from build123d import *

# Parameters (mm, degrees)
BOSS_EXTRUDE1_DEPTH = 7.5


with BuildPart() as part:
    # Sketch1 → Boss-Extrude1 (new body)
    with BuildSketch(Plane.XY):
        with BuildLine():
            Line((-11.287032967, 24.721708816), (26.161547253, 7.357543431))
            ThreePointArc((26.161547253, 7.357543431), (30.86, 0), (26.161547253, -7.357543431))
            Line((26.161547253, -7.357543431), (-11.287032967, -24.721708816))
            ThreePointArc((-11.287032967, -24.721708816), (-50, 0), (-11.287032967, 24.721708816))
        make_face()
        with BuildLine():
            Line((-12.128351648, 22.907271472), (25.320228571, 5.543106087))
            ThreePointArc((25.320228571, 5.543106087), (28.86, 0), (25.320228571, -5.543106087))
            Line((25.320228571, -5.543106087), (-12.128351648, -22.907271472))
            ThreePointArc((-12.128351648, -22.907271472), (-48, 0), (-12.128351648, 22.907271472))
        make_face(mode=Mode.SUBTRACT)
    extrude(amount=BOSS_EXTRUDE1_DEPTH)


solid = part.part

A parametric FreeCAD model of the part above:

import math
import FreeCAD as App
import Part
import Sketcher
Q = App.Units.Quantity

doc = App.newDocument("Part")
params = doc.addObject("Spreadsheet::Sheet", "Params")
for row, (alias, value) in enumerate([
    ("sketch1_radius", "27.25 mm"),
    ("sketch1_radius2", "8.11 mm"),
    ("sketch1_radius3", "6.11 mm"),
    ("pad1_length", "7.5 mm"),
], start=1):
    params.set(f"A{row}", alias)
    params.set(f"B{row}", "=" + value)
    params.setAlias(f"B{row}", alias)

body = doc.addObject("PartDesign::Body", "Body")

# Sketch on XY plane
sketch1 = body.newObject("Sketcher::SketchObject", "Sketch")
sketch1.AttachmentSupport = (doc.getObject("XY_Plane"), [""])
sketch1.MapMode = "FlatFace"
sketch1.addGeometry([
    Part.LineSegment(App.Vector(26, 7, 0), App.Vector(-11, 25, 0)),  # 0
    Part.ArcOfCircle(Part.Circle(App.Vector(-23, 0, 0), App.Vector(0, 0, 1), 27), math.radians(65), math.radians(295)),  # 1
    Part.LineSegment(App.Vector(-11, -25, 0), App.Vector(26, -7, 0)),  # 2
    Part.ArcOfCircle(Part.Circle(App.Vector(23, 0, 0), App.Vector(0, 0, 1), 8), math.radians(-65), math.radians(65)),  # 3
    Part.LineSegment(App.Vector(-12, 23, 0), App.Vector(25, 6, 0)),  # 4
    Part.ArcOfCircle(Part.Circle(App.Vector(23, 0, 0), App.Vector(0, 0, 1), 6), math.radians(-65), math.radians(65)),  # 5
    Part.LineSegment(App.Vector(25, -6, 0), App.Vector(-12, -23, 0)),  # 6
    Part.ArcOfCircle(Part.Circle(App.Vector(-23, 0, 0), App.Vector(0, 0, 1), 25), math.radians(65), math.radians(295)),  # 7
], False)
sketch1.addConstraint([
    Sketcher.Constraint("Tangent", 0, 2, 1, 1),
    Sketcher.Constraint("Tangent", 1, 2, 2, 1),
    Sketcher.Constraint("Tangent", 2, 2, 3, 1),
    Sketcher.Constraint("Tangent", 3, 2, 0, 1),
    Sketcher.Constraint("Tangent", 4, 2, 5, 2),
    Sketcher.Constraint("Tangent", 5, 1, 6, 1),
    Sketcher.Constraint("Tangent", 6, 2, 7, 2),
    Sketcher.Constraint("Tangent", 7, 1, 4, 1),
    Sketcher.Constraint("Coincident", 5, 3, 3, 3),
    Sketcher.Constraint("Coincident", 7, 3, 1, 3),
    Sketcher.Constraint("Symmetric", 1, 3, 3, 3, -1, 1),
    Sketcher.Constraint("PointOnObject", 1, 3, -1),
    Sketcher.Constraint("Parallel", 0, 4),
    Sketcher.Constraint("Radius", 1, Q("27.25 mm")),
    Sketcher.Constraint("Radius", 3, Q("8.11 mm")),
    Sketcher.Constraint("Radius", 5, Q("6.11 mm")),
    Sketcher.Constraint("DistanceX", 1, 3, 3, 3, Q("45.5 mm")),
])
sketch1.setExpression("Constraints[13]", "Params.sketch1_radius")
sketch1.setExpression("Constraints[14]", "Params.sketch1_radius2")
sketch1.setExpression("Constraints[15]", "Params.sketch1_radius3")
pad1 = body.newObject("PartDesign::Pad", "Pad")
pad1.Profile = sketch1
pad1.setExpression("Length", "Params.pad1_length")

doc.recompute()
